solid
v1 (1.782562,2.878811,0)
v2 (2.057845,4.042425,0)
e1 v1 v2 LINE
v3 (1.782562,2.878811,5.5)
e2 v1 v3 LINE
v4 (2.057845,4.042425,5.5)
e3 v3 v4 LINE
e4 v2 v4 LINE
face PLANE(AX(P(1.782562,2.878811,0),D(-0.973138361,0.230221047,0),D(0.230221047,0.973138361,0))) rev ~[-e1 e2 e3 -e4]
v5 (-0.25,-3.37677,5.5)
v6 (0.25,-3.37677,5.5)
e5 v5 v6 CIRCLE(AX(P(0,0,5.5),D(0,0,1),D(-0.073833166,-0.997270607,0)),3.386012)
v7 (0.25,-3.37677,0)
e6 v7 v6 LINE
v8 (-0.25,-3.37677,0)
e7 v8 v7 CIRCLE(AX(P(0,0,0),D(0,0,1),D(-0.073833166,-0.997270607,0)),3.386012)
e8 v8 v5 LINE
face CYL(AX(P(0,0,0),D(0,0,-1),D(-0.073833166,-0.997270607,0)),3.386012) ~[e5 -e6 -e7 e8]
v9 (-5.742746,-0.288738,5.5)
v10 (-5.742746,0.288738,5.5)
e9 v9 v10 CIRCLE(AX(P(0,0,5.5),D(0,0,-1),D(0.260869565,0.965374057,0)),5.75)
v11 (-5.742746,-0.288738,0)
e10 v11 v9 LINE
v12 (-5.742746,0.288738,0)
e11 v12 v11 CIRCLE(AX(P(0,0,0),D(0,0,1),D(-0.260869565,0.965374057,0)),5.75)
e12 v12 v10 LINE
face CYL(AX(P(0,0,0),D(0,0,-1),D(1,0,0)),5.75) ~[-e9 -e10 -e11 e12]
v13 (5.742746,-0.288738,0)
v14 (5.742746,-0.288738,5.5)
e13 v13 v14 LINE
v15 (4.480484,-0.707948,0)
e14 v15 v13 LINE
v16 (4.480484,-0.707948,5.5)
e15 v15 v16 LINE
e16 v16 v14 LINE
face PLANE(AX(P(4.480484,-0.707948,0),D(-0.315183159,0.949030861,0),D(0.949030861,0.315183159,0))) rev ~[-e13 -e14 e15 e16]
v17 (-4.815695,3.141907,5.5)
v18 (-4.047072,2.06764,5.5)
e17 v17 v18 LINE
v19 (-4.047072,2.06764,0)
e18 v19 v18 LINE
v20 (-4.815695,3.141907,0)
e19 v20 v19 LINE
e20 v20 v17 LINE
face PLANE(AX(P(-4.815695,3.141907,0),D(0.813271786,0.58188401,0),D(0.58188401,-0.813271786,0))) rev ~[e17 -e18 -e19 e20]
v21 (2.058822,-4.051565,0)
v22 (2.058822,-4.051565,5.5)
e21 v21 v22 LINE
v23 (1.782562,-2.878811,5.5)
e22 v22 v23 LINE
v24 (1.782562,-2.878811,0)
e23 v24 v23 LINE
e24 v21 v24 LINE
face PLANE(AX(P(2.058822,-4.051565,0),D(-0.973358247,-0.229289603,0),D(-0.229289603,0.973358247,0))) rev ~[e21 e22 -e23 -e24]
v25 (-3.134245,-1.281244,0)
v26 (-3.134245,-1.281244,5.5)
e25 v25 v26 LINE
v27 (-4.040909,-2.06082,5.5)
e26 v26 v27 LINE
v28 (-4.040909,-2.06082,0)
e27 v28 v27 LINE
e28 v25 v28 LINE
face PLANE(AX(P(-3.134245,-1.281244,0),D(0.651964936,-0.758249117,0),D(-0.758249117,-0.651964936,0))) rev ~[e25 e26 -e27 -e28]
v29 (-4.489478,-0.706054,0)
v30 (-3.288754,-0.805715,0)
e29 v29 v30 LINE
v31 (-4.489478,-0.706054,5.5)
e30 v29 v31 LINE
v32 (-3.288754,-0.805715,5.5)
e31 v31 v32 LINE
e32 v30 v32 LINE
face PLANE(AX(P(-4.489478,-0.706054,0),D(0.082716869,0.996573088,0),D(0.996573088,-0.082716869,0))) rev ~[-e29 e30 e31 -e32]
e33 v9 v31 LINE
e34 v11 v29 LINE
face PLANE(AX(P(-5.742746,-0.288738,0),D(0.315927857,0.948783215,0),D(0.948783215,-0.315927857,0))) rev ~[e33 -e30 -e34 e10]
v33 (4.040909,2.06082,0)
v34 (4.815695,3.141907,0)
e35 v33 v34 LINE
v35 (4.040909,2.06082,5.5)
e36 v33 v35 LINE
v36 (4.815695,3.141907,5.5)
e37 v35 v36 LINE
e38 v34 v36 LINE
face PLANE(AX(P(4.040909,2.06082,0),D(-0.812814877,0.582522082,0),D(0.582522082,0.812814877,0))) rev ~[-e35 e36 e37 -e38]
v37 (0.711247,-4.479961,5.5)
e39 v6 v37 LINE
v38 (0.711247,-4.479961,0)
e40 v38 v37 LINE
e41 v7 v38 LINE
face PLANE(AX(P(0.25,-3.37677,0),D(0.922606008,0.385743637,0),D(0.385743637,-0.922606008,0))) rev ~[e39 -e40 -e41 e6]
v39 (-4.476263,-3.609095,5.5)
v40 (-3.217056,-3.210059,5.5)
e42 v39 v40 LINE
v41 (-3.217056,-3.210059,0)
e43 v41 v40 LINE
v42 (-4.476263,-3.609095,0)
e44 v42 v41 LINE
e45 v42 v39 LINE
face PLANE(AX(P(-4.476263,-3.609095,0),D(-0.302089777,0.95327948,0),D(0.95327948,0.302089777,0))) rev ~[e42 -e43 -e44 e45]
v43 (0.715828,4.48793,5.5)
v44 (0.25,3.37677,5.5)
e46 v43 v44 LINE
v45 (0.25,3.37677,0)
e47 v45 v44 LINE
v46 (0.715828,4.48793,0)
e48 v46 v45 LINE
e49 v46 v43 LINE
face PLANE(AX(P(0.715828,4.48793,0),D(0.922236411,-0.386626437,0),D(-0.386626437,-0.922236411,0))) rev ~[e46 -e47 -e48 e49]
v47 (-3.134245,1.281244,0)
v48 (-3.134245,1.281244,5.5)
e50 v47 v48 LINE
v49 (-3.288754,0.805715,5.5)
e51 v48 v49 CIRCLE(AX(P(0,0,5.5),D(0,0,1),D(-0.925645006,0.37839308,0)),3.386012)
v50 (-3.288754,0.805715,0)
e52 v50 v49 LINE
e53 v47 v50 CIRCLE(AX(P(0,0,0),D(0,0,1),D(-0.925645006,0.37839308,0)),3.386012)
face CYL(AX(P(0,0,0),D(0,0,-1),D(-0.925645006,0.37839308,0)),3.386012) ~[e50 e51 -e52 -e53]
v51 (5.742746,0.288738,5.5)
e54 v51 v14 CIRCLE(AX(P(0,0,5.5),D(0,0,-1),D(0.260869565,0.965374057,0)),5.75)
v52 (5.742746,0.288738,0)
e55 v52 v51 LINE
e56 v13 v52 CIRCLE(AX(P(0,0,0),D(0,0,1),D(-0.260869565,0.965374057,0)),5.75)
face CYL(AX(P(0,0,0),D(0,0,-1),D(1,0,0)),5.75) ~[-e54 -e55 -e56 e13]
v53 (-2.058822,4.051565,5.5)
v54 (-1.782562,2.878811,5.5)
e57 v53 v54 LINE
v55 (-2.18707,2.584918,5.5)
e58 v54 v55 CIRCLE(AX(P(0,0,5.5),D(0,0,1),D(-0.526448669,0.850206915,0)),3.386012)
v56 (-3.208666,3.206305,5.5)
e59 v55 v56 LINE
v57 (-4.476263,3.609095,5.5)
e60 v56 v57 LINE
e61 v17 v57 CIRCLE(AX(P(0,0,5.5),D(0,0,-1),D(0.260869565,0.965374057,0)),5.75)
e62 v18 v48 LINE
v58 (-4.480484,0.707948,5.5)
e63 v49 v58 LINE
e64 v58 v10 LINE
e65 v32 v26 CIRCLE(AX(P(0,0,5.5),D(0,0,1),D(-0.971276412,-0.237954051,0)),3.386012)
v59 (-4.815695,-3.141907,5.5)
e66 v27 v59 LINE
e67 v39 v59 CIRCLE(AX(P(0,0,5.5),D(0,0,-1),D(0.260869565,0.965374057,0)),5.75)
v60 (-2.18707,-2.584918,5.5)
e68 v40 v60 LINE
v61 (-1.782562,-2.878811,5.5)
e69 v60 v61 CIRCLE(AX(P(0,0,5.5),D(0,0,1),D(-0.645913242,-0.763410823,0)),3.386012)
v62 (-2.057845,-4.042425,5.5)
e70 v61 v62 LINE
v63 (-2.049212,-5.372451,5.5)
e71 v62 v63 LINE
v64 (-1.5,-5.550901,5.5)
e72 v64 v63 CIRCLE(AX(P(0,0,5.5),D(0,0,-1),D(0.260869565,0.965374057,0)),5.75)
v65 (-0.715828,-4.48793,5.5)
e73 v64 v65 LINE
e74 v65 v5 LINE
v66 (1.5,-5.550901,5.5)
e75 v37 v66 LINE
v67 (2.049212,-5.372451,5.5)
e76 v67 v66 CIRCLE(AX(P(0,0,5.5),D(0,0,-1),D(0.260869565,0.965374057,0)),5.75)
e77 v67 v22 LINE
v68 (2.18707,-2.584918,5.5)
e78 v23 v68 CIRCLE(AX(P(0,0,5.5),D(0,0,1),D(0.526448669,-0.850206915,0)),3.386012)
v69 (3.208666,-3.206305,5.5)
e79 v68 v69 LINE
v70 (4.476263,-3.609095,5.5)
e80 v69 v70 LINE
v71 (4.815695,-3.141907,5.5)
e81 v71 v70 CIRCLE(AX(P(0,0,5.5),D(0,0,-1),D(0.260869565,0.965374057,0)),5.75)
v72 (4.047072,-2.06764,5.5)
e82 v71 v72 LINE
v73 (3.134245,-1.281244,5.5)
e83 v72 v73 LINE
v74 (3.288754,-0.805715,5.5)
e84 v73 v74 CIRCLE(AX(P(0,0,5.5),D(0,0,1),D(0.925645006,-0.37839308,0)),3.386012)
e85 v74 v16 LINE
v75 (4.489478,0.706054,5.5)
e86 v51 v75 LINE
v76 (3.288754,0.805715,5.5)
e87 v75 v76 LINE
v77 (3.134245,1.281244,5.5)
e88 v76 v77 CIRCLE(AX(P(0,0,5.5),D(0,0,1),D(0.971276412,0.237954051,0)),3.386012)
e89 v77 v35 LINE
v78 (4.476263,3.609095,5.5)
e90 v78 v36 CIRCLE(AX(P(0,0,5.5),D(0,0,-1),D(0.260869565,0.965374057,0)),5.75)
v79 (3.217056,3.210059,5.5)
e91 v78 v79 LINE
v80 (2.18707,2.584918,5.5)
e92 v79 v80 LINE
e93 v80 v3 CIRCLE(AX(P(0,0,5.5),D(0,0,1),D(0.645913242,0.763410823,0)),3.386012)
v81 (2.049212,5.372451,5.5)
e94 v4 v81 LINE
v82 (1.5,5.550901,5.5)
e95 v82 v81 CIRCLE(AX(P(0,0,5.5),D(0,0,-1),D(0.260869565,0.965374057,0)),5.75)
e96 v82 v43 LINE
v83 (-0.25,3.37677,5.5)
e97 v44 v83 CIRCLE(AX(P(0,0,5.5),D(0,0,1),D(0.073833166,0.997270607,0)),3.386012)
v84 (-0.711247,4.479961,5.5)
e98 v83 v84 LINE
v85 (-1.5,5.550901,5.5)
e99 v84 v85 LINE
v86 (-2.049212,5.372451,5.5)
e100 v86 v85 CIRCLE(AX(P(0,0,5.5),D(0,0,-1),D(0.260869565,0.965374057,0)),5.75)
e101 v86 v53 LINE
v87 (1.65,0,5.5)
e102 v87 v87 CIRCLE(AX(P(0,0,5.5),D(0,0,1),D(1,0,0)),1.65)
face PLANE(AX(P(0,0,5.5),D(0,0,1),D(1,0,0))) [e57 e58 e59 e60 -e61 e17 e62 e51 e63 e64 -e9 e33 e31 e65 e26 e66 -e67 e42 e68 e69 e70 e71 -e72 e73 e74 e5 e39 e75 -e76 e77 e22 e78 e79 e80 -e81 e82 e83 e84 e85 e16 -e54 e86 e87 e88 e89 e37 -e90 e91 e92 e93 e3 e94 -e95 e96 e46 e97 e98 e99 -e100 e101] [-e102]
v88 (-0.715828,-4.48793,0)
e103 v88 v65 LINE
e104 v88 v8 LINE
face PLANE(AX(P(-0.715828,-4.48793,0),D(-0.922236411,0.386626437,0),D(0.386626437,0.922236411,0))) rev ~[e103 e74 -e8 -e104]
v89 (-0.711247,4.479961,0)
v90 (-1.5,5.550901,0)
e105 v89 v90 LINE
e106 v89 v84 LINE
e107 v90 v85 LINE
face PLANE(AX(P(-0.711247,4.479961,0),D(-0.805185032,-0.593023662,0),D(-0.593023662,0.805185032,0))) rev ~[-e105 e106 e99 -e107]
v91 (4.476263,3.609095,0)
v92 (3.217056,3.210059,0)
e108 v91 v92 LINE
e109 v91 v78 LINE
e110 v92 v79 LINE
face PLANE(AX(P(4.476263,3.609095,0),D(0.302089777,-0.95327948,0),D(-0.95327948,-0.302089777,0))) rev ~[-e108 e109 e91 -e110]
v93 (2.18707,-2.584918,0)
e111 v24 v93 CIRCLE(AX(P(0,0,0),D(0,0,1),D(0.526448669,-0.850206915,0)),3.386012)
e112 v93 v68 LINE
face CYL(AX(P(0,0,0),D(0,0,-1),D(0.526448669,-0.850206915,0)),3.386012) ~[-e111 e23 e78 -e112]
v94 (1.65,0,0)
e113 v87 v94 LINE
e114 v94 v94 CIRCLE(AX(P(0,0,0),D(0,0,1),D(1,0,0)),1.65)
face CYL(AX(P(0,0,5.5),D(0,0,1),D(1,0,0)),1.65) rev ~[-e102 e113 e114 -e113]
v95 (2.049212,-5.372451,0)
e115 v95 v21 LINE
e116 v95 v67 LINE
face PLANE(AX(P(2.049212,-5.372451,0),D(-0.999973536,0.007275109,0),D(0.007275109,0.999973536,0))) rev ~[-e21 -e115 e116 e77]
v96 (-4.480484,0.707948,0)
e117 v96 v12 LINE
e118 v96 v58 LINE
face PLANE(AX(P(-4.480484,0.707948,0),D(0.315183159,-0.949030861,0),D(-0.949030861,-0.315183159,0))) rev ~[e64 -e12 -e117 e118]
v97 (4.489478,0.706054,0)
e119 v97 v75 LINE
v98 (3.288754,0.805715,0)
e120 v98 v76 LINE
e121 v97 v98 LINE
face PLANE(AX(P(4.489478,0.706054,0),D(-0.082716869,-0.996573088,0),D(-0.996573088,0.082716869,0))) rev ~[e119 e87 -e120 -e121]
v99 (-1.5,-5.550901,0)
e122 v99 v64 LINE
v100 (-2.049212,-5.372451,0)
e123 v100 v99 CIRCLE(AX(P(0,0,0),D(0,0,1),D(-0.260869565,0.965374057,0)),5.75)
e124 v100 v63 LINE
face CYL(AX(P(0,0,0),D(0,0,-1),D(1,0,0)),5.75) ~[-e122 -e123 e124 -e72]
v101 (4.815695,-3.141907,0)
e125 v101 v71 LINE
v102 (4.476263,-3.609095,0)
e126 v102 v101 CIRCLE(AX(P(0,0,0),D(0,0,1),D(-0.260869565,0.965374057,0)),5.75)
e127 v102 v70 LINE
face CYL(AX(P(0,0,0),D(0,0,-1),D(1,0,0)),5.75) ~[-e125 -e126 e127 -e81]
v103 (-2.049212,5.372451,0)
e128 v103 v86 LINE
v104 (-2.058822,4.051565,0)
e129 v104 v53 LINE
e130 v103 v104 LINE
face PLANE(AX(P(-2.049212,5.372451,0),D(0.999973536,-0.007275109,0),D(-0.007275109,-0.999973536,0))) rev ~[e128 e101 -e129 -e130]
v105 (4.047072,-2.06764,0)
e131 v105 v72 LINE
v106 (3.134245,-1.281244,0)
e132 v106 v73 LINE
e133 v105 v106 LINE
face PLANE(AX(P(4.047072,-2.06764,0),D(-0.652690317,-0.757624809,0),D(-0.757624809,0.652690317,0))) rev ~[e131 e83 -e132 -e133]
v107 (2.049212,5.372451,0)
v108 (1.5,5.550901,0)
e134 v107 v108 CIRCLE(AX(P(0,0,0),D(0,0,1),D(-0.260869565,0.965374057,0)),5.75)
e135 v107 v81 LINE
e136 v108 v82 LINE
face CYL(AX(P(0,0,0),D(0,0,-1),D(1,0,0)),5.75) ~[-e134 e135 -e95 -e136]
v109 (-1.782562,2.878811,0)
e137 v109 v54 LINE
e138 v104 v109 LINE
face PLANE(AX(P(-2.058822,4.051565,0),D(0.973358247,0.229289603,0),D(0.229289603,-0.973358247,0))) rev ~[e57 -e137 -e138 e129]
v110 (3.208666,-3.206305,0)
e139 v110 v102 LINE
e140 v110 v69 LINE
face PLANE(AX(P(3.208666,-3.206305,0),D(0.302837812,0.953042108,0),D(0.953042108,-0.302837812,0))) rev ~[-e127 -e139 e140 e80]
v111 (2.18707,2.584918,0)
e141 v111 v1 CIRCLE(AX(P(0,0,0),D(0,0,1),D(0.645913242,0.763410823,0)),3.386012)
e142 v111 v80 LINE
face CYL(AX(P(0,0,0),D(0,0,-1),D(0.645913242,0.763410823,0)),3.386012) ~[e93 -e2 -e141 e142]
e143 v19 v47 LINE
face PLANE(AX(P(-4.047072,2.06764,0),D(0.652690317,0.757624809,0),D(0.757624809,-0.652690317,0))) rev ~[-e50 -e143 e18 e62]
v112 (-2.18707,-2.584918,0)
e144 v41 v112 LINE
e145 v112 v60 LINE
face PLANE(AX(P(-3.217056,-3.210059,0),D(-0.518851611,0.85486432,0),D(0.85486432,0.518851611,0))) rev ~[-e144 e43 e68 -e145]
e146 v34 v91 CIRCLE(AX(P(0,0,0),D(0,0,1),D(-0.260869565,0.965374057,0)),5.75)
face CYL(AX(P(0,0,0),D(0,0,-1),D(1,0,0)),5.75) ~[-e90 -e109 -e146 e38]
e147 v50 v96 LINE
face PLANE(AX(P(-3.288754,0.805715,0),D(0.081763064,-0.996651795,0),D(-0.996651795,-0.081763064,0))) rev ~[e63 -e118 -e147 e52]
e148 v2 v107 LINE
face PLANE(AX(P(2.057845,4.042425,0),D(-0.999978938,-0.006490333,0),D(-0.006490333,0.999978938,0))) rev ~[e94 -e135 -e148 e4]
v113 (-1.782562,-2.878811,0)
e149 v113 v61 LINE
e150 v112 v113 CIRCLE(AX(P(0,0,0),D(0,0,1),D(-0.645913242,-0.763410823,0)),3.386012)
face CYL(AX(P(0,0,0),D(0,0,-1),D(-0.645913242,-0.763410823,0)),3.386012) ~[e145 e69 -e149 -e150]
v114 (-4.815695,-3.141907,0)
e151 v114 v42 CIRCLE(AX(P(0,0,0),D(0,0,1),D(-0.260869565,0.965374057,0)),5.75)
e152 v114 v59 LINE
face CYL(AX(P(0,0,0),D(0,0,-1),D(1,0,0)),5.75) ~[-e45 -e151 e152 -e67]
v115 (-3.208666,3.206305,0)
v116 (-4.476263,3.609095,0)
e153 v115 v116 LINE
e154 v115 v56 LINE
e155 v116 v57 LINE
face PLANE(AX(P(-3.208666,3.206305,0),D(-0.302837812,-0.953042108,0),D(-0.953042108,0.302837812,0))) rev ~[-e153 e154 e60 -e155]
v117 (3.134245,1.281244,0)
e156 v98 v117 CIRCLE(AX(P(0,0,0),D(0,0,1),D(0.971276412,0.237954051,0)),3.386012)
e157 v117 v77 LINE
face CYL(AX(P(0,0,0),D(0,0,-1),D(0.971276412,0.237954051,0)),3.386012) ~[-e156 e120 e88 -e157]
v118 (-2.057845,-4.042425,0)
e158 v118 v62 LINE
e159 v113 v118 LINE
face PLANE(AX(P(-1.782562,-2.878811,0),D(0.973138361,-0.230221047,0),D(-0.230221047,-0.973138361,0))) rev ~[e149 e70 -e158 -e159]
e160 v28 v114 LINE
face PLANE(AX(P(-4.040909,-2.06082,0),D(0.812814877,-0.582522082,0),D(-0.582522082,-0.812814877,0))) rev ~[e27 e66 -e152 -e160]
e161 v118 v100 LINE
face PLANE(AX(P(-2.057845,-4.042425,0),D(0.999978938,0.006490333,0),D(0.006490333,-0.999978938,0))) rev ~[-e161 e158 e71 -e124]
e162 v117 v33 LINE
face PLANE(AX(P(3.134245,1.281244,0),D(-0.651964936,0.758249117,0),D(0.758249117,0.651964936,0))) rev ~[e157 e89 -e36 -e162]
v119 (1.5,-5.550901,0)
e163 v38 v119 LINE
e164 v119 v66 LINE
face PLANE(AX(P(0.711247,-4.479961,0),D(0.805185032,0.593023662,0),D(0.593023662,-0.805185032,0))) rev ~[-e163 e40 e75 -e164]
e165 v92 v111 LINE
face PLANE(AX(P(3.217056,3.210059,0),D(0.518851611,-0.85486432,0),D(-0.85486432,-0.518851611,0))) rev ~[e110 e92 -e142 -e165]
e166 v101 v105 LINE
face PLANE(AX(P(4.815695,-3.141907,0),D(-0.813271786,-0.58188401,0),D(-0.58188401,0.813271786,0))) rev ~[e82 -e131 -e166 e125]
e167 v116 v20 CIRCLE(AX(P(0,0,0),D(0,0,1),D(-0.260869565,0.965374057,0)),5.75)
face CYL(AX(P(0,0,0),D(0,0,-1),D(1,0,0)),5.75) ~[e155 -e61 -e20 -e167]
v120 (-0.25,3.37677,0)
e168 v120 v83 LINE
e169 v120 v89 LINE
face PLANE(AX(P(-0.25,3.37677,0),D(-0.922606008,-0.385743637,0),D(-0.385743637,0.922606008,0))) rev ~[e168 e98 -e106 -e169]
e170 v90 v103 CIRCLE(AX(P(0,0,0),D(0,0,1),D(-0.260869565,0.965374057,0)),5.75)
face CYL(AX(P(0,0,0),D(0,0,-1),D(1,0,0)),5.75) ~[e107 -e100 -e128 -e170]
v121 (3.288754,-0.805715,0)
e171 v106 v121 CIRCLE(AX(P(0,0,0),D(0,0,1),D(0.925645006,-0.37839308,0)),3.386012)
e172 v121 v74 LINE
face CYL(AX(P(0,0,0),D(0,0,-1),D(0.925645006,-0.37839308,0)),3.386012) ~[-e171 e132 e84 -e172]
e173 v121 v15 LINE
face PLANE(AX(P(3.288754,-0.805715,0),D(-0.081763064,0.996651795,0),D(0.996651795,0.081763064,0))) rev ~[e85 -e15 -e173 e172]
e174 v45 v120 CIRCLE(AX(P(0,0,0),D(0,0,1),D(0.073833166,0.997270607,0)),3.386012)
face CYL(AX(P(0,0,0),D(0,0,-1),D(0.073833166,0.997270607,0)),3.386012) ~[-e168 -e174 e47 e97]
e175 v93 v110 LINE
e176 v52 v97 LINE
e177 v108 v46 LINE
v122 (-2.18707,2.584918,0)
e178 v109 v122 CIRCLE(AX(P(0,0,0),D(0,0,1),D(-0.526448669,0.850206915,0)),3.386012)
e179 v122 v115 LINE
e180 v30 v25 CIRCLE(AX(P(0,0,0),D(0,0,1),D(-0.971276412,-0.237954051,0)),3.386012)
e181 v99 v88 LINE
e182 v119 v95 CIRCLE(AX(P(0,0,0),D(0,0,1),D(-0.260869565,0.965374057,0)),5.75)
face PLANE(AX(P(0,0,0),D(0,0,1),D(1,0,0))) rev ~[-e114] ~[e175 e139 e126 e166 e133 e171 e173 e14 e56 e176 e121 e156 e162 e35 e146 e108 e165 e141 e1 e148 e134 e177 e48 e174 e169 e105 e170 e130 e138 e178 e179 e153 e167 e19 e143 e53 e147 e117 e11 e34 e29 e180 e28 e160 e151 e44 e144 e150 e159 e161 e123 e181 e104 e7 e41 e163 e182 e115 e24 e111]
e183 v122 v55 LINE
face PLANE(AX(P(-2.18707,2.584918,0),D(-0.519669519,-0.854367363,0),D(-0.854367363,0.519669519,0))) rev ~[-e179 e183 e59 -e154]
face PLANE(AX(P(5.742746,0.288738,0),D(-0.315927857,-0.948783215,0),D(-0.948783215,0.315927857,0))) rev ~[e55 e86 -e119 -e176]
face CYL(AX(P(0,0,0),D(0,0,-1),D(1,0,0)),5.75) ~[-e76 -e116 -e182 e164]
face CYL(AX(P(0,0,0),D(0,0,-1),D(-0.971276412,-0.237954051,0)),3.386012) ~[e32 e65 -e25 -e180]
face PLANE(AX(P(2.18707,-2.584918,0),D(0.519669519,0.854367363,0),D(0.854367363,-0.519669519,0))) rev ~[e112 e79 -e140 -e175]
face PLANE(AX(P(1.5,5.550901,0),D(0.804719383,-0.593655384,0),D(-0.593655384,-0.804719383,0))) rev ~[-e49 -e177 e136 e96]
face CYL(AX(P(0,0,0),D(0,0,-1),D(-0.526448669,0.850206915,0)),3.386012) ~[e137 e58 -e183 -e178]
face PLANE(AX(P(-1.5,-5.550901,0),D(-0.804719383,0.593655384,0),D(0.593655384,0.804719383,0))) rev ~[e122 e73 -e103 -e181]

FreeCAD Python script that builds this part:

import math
import FreeCAD as App
import Part
import Sketcher

V = App.Vector
Q = App.Units.Quantity

doc = App.newDocument("Part")
body = doc.addObject("PartDesign::Body", "Body")

# Sketch on XY plane
sketch1 = doc.addObject("Sketcher::SketchObject", "Sketch")
body.addObject(sketch1)
sketch1.AttachmentSupport = (doc.XY_Plane, [""])
sketch1.MapMode = "FlatFace"
sketch1.addGeometry(Part.Circle(V(0, 0, 0), V(0, 0, 1), 6), False)
sketch1.addConstraint(Sketcher.Constraint("Coincident", 0, 3, -1, 1))
sketch1.addConstraint(Sketcher.Constraint("Diameter", 0, Q("11.5 mm")))
pad1 = doc.addObject("PartDesign::Pad", "Pad")
body.addObject(pad1)
pad1.Profile = sketch1
pad1.Length = 5.5

# Sketch on XY plane
sketch2 = doc.addObject("Sketcher::SketchObject", "Sketch001")
body.addObject(sketch2)
sketch2.AttachmentSupport = (doc.XY_Plane, [""])
sketch2.MapMode = "FlatFace"
sketch2.AttachmentOffset = App.Placement(V(0, 0, 5.5), App.Rotation())
sketch2.addGeometry(Part.Circle(V(0, 0, 0), V(0, 0, 1), 1.6), False)
sketch2.addConstraint(Sketcher.Constraint("Coincident", 0, 3, -1, 1))
sketch2.addConstraint(Sketcher.Constraint("Diameter", 0, Q("3.3 mm")))
pocket1 = doc.addObject("PartDesign::Pocket", "Pocket")
body.addObject(pocket1)
pocket1.Profile = sketch2
pocket1.Length = 5.5

# Sketch on XY plane
sketch3 = doc.addObject("Sketcher::SketchObject", "Sketch002")
body.addObject(sketch3)
sketch3.AttachmentSupport = (doc.XY_Plane, [""])
sketch3.MapMode = "FlatFace"
sketch3.addGeometry(Part.LineSegment(V(-0.7, 4.5, 0), V(-0.2, 3.4, 0)), False)
sketch3.addGeometry(Part.ArcOfCircle(Part.Circle(V(0, 0, 0), V(0, 0, 1), 3.4), math.radians(85.77), math.radians(94.23)), False)
sketch3.addGeometry(Part.LineSegment(V(0.2, 3.4, 0), V(0.7, 4.5, 0)), False)
sketch3.addGeometry(Part.LineSegment(V(0.7, 4.5, 0), V(1.5, 5.6, 0)), False)
sketch3.addGeometry(Part.ArcOfCircle(Part.Circle(V(0, 0, 0), V(0, 0, 1), 5.8), math.radians(75), math.radians(105)), False)
sketch3.addGeometry(Part.LineSegment(V(-1.5, 5.6, 0), V(-0.7, 4.5, 0)), False)
sketch3.addConstraint(Sketcher.Constraint("Coincident", 0, 2, 1, 2))
sketch3.addConstraint(Sketcher.Constraint("Coincident", 1, 1, 2, 1))
sketch3.addConstraint(Sketcher.Constraint("Coincident", 2, 2, 3, 1))
sketch3.addConstraint(Sketcher.Constraint("Coincident", 3, 2, 4, 1))
sketch3.addConstraint(Sketcher.Constraint("Coincident", 4, 2, 5, 1))
sketch3.addConstraint(Sketcher.Constraint("Coincident", 5, 2, 0, 1))
sketch3.addConstraint(Sketcher.Constraint("Coincident", 1, 3, -1, 1))
sketch3.addConstraint(Sketcher.Constraint("Coincident", 4, 3, -1, 1))
sketch3.addConstraint(Sketcher.Constraint("Horizontal", 0, 2, 1, 1))
sketch3.addConstraint(Sketcher.Constraint("Horizontal", 3, 2, 4, 2))
sketch3.addConstraint(Sketcher.Constraint("Radius", 4, Q("5.75 mm")))
sketch3.addConstraint(Sketcher.Constraint("DistanceX", 4, 2, 3, 2, Q("3 mm")))
sketch3.addConstraint(Sketcher.Constraint("DistanceX", 0, 2, 1, 1, Q("0.5 mm")))
sketch3.addConstraint(Sketcher.Constraint("Radius", 1, Q("3.386012 mm")))
sketch3.addConstraint(Sketcher.Constraint("Distance", 3, Q("1.320921 mm")))
sketch3.addConstraint(Sketcher.Constraint("DistanceX", -1, 1, 2, 2, Q("0.715828 mm")))
sketch3.addConstraint(Sketcher.Constraint("DistanceY", -1, 1, 5, 2, Q("4.479961 mm")))
sketch3.addConstraint(Sketcher.Constraint("Distance", 0, Q("1.195734 mm")))
pocket2 = doc.addObject("PartDesign::Pocket", "Pocket001")
body.addObject(pocket2)
pocket2.Profile = sketch3
pocket2.Length = 5.5
pocket2.Reversed = True
doc.recompute()

polarpattern = doc.addObject("PartDesign::PolarPattern", "PolarPattern")
body.addObject(polarpattern)
polarpattern.Originals = [pocket2]
polarpattern.Axis = (doc.Z_Axis, [""])
polarpattern.Angle = 360
polarpattern.Occurrences = 10
body.Tip = polarpattern

doc.recompute()
